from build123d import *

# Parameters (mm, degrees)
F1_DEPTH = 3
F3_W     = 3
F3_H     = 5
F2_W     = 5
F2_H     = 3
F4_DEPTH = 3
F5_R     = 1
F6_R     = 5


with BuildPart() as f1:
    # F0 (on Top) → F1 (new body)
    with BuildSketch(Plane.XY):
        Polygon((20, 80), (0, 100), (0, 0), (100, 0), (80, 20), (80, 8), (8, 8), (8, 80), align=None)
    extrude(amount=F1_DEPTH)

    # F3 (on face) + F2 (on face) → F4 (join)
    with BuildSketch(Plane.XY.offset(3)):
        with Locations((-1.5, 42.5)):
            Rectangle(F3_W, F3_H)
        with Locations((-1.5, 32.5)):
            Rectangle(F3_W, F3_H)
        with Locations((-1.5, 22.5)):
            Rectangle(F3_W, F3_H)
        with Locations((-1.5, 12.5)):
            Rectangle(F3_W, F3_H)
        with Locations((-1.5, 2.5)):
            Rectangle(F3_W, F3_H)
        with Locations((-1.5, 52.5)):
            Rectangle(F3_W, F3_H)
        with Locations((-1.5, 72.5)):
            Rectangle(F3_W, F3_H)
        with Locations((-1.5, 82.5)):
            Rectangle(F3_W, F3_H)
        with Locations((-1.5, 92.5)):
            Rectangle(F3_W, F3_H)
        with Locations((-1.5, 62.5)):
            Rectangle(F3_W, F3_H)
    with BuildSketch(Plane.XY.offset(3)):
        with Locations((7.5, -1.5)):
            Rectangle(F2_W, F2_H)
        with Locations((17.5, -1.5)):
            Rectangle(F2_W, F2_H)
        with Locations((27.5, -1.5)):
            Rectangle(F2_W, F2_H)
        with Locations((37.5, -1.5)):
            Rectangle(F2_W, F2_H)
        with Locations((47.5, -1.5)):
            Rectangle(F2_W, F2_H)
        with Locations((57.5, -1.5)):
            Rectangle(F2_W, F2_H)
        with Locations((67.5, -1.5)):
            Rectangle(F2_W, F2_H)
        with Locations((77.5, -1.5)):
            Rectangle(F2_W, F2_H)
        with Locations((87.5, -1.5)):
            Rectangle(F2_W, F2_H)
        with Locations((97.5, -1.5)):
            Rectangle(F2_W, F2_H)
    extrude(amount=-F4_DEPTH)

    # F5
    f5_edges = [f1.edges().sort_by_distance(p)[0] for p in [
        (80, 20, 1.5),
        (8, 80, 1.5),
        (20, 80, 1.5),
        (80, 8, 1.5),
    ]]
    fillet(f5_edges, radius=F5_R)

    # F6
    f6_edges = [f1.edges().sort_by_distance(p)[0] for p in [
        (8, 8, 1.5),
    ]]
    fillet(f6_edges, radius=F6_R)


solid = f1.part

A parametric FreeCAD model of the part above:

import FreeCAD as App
import Part
import Sketcher

V = App.Vector
Q = App.Units.Quantity


def edges_at(feature, points):
    """Names of the edges that pass closest to the given points."""
    edges = feature.Shape.Edges
    near = lambda p: min(range(len(edges)), key=lambda i: edges[i].distToShape(Part.Vertex(*p))[0])
    return sorted({f"Edge{near(p) + 1}" for p in points})


def add_polygon(sketch, points):
    """Adds a closed chain of lines whose ends are joined by coincident constraints."""
    first, n = sketch.GeometryCount, len(points)
    for a, b in zip(points, points[1:] + points[:1]):
        sketch.addGeometry(Part.LineSegment(App.Vector(*a, 0), App.Vector(*b, 0)), False)
    for i in range(n):
        sketch.addConstraint(Sketcher.Constraint("Coincident", first + i, 2, first + (i + 1) % n, 1))

doc = App.newDocument("Part")
body = doc.addObject("PartDesign::Body", "Body")

# Sketch on XY plane
sketch1 = body.newObject("Sketcher::SketchObject", "Sketch")
sketch1.AttachmentSupport = (doc.getObject("XY_Plane"), [""])
sketch1.MapMode = "FlatFace"
add_polygon(sketch1, [(20, 80), (0, 100), (0, 0), (100, 0), (80, 20), (80, 8), (8, 8), (8, 80)])  # lines 0-7
sketch1.addConstraint(Sketcher.Constraint("Vertical", 1))
sketch1.addConstraint(Sketcher.Constraint("Horizontal", 2))
sketch1.addConstraint(Sketcher.Constraint("Vertical", 4))
sketch1.addConstraint(Sketcher.Constraint("Horizontal", 5))
sketch1.addConstraint(Sketcher.Constraint("Vertical", 6))
sketch1.addConstraint(Sketcher.Constraint("Horizontal", 7))
sketch1.addConstraint(Sketcher.Constraint("Coincident", 1, 2, -1, 1))
sketch1.addConstraint(Sketcher.Constraint("Parallel", 0, 3))
sketch1.addConstraint(Sketcher.Constraint("Equal", 2, 1))
sketch1.addConstraint(Sketcher.Constraint("Equal", 7, 4))
sketch1.addConstraint(Sketcher.Constraint("Equal", 5, 6))
sketch1.addConstraint(Sketcher.Constraint("Equal", 0, 3))
sketch1.addConstraint(Sketcher.Constraint("DistanceX", 2, 1, 2, 2, Q("100 mm")))
sketch1.addConstraint(Sketcher.Constraint("DistanceX", 5, 2, 5, 1, Q("72 mm")))
sketch1.addConstraint(Sketcher.Constraint("DistanceX", 7, 1, 7, 2, Q("12 mm")))
pad1 = body.newObject("PartDesign::Pad", "Pad")
pad1.Profile = sketch1
pad1.Length = 3

# Sketch on XY plane
sketch2 = body.newObject("Sketcher::SketchObject", "Sketch001")
sketch2.AttachmentSupport = (doc.getObject("XY_Plane"), [""])
sketch2.MapMode = "FlatFace"
sketch2.AttachmentOffset = App.Placement(V(0, 0, 3), App.Rotation())
add_polygon(sketch2, [(-3, 45), (-3, 40), (0, 40), (0, 45)])  # lines 0-3
add_polygon(sketch2, [(-3, 35), (-3, 30), (0, 30), (0, 35)])  # lines 4-7
add_polygon(sketch2, [(-3, 25), (-3, 20), (0, 20), (0, 25)])  # lines 8-11
add_polygon(sketch2, [(-3, 15), (-3, 10), (0, 10), (0, 15)])  # lines 12-15
add_polygon(sketch2, [(-3, 5), (-3, 0), (0, 0), (0, 5)])  # lines 16-19
add_polygon(sketch2, [(-3, 55), (-3, 50), (0, 50), (0, 55)])  # lines 20-23
add_polygon(sketch2, [(-3, 75), (-3, 70), (0, 70), (0, 75)])  # lines 24-27
add_polygon(sketch2, [(-3, 85), (-3, 80), (0, 80), (0, 85)])  # lines 28-31
add_polygon(sketch2, [(-3, 95), (-3, 90), (0, 90), (0, 95)])  # lines 32-35
add_polygon(sketch2, [(-3, 65), (-3, 60), (0, 60), (0, 65)])  # lines 36-39
add_polygon(sketch2, [(5, 0), (5, -3), (10, -3), (10, 0)])  # lines 40-43
add_polygon(sketch2, [(15, 0), (15, -3), (20, -3), (20, 0)])  # lines 44-47
add_polygon(sketch2, [(25, 0), (25, -3), (30, -3), (30, 0)])  # lines 48-51
add_polygon(sketch2, [(35, 0), (35, -3), (40, -3), (40, 0)])  # lines 52-55
add_polygon(sketch2, [(45, 0), (45, -3), (50, -3), (50, 0)])  # lines 56-59
add_polygon(sketch2, [(55, 0), (55, -3), (60, -3), (60, 0)])  # lines 60-63
add_polygon(sketch2, [(65, 0), (65, -3), (70, -3), (70, 0)])  # lines 64-67
add_polygon(sketch2, [(75, 0), (75, -3), (80, -3), (80, 0)])  # lines 68-71
add_polygon(sketch2, [(85, 0), (85, -3), (90, -3), (90, 0)])  # lines 72-75
add_polygon(sketch2, [(95, 0), (95, -3), (100, -3), (100, 0)])  # lines 76-79
sketch2.addConstraint(Sketcher.Constraint("Vertical", 0))
sketch2.addConstraint(Sketcher.Constraint("Horizontal", 1))
sketch2.addConstraint(Sketcher.Constraint("Vertical", 2))
sketch2.addConstraint(Sketcher.Constraint("Horizontal", 3))
sketch2.addConstraint(Sketcher.Constraint("Vertical", 4))
sketch2.addConstraint(Sketcher.Constraint("Horizontal", 5))
sketch2.addConstraint(Sketcher.Constraint("Vertical", 6))
sketch2.addConstraint(Sketcher.Constraint("Horizontal", 7))
sketch2.addConstraint(Sketcher.Constraint("Vertical", 8))
sketch2.addConstraint(Sketcher.Constraint("Horizontal", 9))
sketch2.addConstraint(Sketcher.Constraint("Vertical", 10))
sketch2.addConstraint(Sketcher.Constraint("Horizontal", 11))
sketch2.addConstraint(Sketcher.Constraint("Vertical", 12))
sketch2.addConstraint(Sketcher.Constraint("Horizontal", 13))
sketch2.addConstraint(Sketcher.Constraint("Vertical", 14))
sketch2.addConstraint(Sketcher.Constraint("Horizontal", 15))
sketch2.addConstraint(Sketcher.Constraint("Vertical", 16))
sketch2.addConstraint(Sketcher.Constraint("Horizontal", 17))
sketch2.addConstraint(Sketcher.Constraint("Vertical", 18))
sketch2.addConstraint(Sketcher.Constraint("Horizontal", 19))
sketch2.addConstraint(Sketcher.Constraint("Vertical", 20))
sketch2.addConstraint(Sketcher.Constraint("Horizontal", 21))
sketch2.addConstraint(Sketcher.Constraint("Vertical", 22))
sketch2.addConstraint(Sketcher.Constraint("Horizontal", 23))
sketch2.addConstraint(Sketcher.Constraint("Vertical", 24))
sketch2.addConstraint(Sketcher.Constraint("Horizontal", 25))
sketch2.addConstraint(Sketcher.Constraint("Vertical", 26))
sketch2.addConstraint(Sketcher.Constraint("Horizontal", 27))
sketch2.addConstraint(Sketcher.Constraint("Vertical", 28))
sketch2.addConstraint(Sketcher.Constraint("Horizontal", 29))
sketch2.addConstraint(Sketcher.Constraint("Vertical", 30))
sketch2.addConstraint(Sketcher.Constraint("Horizontal", 31))
sketch2.addConstraint(Sketcher.Constraint("Vertical", 32))
sketch2.addConstraint(Sketcher.Constraint("Horizontal", 33))
sketch2.addConstraint(Sketcher.Constraint("Vertical", 34))
sketch2.addConstraint(Sketcher.Constraint("Horizontal", 35))
sketch2.addConstraint(Sketcher.Constraint("Vertical", 36))
sketch2.addConstraint(Sketcher.Constraint("Horizontal", 37))
sketch2.addConstraint(Sketcher.Constraint("Vertical", 38))
sketch2.addConstraint(Sketcher.Constraint("Horizontal", 39))
sketch2.addConstraint(Sketcher.Constraint("Vertical", 40))
sketch2.addConstraint(Sketcher.Constraint("Horizontal", 41))
sketch2.addConstraint(Sketcher.Constraint("Vertical", 42))
sketch2.addConstraint(Sketcher.Constraint("Horizontal", 43))
sketch2.addConstraint(Sketcher.Constraint("Vertical", 44))
sketch2.addConstraint(Sketcher.Constraint("Horizontal", 45))
sketch2.addConstraint(Sketcher.Constraint("Vertical", 46))
sketch2.addConstraint(Sketcher.Constraint("Horizontal", 47))
sketch2.addConstraint(Sketcher.Constraint("Vertical", 48))
sketch2.addConstraint(Sketcher.Constraint("Horizontal", 49))
sketch2.addConstraint(Sketcher.Constraint("Vertical", 50))
sketch2.addConstraint(Sketcher.Constraint("Horizontal", 51))
sketch2.addConstraint(Sketcher.Constraint("Vertical", 52))
sketch2.addConstraint(Sketcher.Constraint("Horizontal", 53))
sketch2.addConstraint(Sketcher.Constraint("Vertical", 54))
sketch2.addConstraint(Sketcher.Constraint("Horizontal", 55))
sketch2.addConstraint(Sketcher.Constraint("Vertical", 56))
sketch2.addConstraint(Sketcher.Constraint("Horizontal", 57))
sketch2.addConstraint(Sketcher.Constraint("Vertical", 58))
sketch2.addConstraint(Sketcher.Constraint("Horizontal", 59))
sketch2.addConstraint(Sketcher.Constraint("Vertical", 60))
sketch2.addConstraint(Sketcher.Constraint("Horizontal", 61))
sketch2.addConstraint(Sketcher.Constraint("Vertical", 62))
sketch2.addConstraint(Sketcher.Constraint("Horizontal", 63))
sketch2.addConstraint(Sketcher.Constraint("Vertical", 64))
sketch2.addConstraint(Sketcher.Constraint("Horizontal", 65))
sketch2.addConstraint(Sketcher.Constraint("Vertical", 66))
sketch2.addConstraint(Sketcher.Constraint("Horizontal", 67))
sketch2.addConstraint(Sketcher.Constraint("Vertical", 68))
sketch2.addConstraint(Sketcher.Constraint("Horizontal", 69))
sketch2.addConstraint(Sketcher.Constraint("Vertical", 70))
sketch2.addConstraint(Sketcher.Constraint("Horizontal", 71))
sketch2.addConstraint(Sketcher.Constraint("Vertical", 72))
sketch2.addConstraint(Sketcher.Constraint("Horizontal", 73))
sketch2.addConstraint(Sketcher.Constraint("Vertical", 74))
sketch2.addConstraint(Sketcher.Constraint("Horizontal", 75))
sketch2.addConstraint(Sketcher.Constraint("Vertical", 76))
sketch2.addConstraint(Sketcher.Constraint("Horizontal", 77))
sketch2.addConstraint(Sketcher.Constraint("Vertical", 78))
sketch2.addConstraint(Sketcher.Constraint("Horizontal", 79))
sketch2.addConstraint(Sketcher.Constraint("Coincident", 17, 2, -1, 1))
sketch2.addConstraint(Sketcher.Constraint("PointOnObject", 1, 2, -2))
sketch2.addConstraint(Sketcher.Constraint("PointOnObject", 5, 2, -2))
sketch2.addConstraint(Sketcher.Constraint("PointOnObject", 9, 2, -2))
sketch2.addConstraint(Sketcher.Constraint("PointOnObject", 13, 2, -2))
sketch2.addConstraint(Sketcher.Constraint("PointOnObject", 21, 2, -2))
sketch2.addConstraint(Sketcher.Constraint("PointOnObject", 25, 2, -2))
sketch2.addConstraint(Sketcher.Constraint("PointOnObject", 29, 2, -2))
sketch2.addConstraint(Sketcher.Constraint("PointOnObject", 33, 2, -2))
sketch2.addConstraint(Sketcher.Constraint("PointOnObject", 37, 2, -2))
sketch2.addConstraint(Sketcher.Constraint("PointOnObject", 42, 2, -1))
sketch2.addConstraint(Sketcher.Constraint("PointOnObject", 46, 2, -1))
sketch2.addConstraint(Sketcher.Constraint("PointOnObject", 50, 2, -1))
sketch2.addConstraint(Sketcher.Constraint("PointOnObject", 54, 2, -1))
sketch2.addConstraint(Sketcher.Constraint("PointOnObject", 58, 2, -1))
sketch2.addConstraint(Sketcher.Constraint("PointOnObject", 62, 2, -1))
sketch2.addConstraint(Sketcher.Constraint("PointOnObject", 66, 2, -1))
sketch2.addConstraint(Sketcher.Constraint("PointOnObject", 70, 2, -1))
sketch2.addConstraint(Sketcher.Constraint("PointOnObject", 74, 2, -1))
sketch2.addConstraint(Sketcher.Constraint("PointOnObject", 78, 2, -1))
sketch2.addConstraint(Sketcher.Constraint("Horizontal", 41, 2, 44, 2))
sketch2.addConstraint(Sketcher.Constraint("Horizontal", 45, 2, 48, 2))
sketch2.addConstraint(Sketcher.Constraint("Horizontal", 49, 2, 52, 2))
sketch2.addConstraint(Sketcher.Constraint("Horizontal", 53, 2, 56, 2))
sketch2.addConstraint(Sketcher.Constraint("Horizontal", 57, 2, 60, 2))
sketch2.addConstraint(Sketcher.Constraint("Horizontal", 61, 2, 64, 2))
sketch2.addConstraint(Sketcher.Constraint("Horizontal", 65, 2, 68, 2))
sketch2.addConstraint(Sketcher.Constraint("Horizontal", 69, 2, 72, 2))
sketch2.addConstraint(Sketcher.Constraint("Horizontal", 73, 2, 76, 2))
sketch2.addConstraint(Sketcher.Constraint("Vertical", 3, 2, 4, 2))
sketch2.addConstraint(Sketcher.Constraint("Vertical", 7, 2, 8, 2))
sketch2.addConstraint(Sketcher.Constraint("Vertical", 11, 2, 12, 2))
sketch2.addConstraint(Sketcher.Constraint("Vertical", 15, 2, 16, 2))
sketch2.addConstraint(Sketcher.Constraint("Vertical", 19, 2, 20, 2))
sketch2.addConstraint(Sketcher.Constraint("Vertical", 23, 2, 24, 2))
sketch2.addConstraint(Sketcher.Constraint("Vertical", 27, 2, 28, 2))
sketch2.addConstraint(Sketcher.Constraint("Vertical", 31, 2, 32, 2))
sketch2.addConstraint(Sketcher.Constraint("Vertical", 35, 2, 36, 2))
sketch2.addConstraint(Sketcher.Constraint("Equal", 43, 45))
sketch2.addConstraint(Sketcher.Constraint("Equal", 47, 49))
sketch2.addConstraint(Sketcher.Constraint("Equal", 51, 53))
sketch2.addConstraint(Sketcher.Constraint("Equal", 55, 57))
sketch2.addConstraint(Sketcher.Constraint("Equal", 59, 61))
sketch2.addConstraint(Sketcher.Constraint("Equal", 63, 65))
sketch2.addConstraint(Sketcher.Constraint("Equal", 67, 69))
sketch2.addConstraint(Sketcher.Constraint("Equal", 71, 73))
sketch2.addConstraint(Sketcher.Constraint("Equal", 75, 77))
sketch2.addConstraint(Sketcher.Constraint("Equal", 79, 0))
sketch2.addConstraint(Sketcher.Constraint("Equal", 2, 4))
sketch2.addConstraint(Sketcher.Constraint("Equal", 6, 8))
sketch2.addConstraint(Sketcher.Constraint("Equal", 10, 12))
sketch2.addConstraint(Sketcher.Constraint("Equal", 14, 16))
sketch2.addConstraint(Sketcher.Constraint("Equal", 18, 20))
sketch2.addConstraint(Sketcher.Constraint("Equal", 22, 24))
sketch2.addConstraint(Sketcher.Constraint("Equal", 26, 28))
sketch2.addConstraint(Sketcher.Constraint("Equal", 30, 32))
sketch2.addConstraint(Sketcher.Constraint("Equal", 34, 36))
sketch2.addConstraint(Sketcher.Constraint("Equal", 39, 40))
sketch2.addConstraint(Sketcher.Constraint("DistanceX", 1, 1, 1, 2, Q("3 mm")))
sketch2.addConstraint(Sketcher.Constraint("DistanceX", 41, 1, 41, 2, Q("5 mm")))
sketch2.addConstraint(Sketcher.Constraint("DistanceY", -1, 1, 0, 2, Q("40 mm")))
sketch2.addConstraint(Sketcher.Constraint("DistanceY", -1, 1, 4, 2, Q("30 mm")))
sketch2.addConstraint(Sketcher.Constraint("DistanceY", -1, 1, 8, 2, Q("20 mm")))
sketch2.addConstraint(Sketcher.Constraint("DistanceY", -1, 1, 12, 2, Q("10 mm")))
sketch2.addConstraint(Sketcher.Constraint("DistanceY", -1, 1, 20, 2, Q("50 mm")))
sketch2.addConstraint(Sketcher.Constraint("DistanceY", -1, 1, 24, 2, Q("70 mm")))
sketch2.addConstraint(Sketcher.Constraint("DistanceY", -1, 1, 28, 2, Q("80 mm")))
sketch2.addConstraint(Sketcher.Constraint("DistanceY", -1, 1, 32, 2, Q("90 mm")))
sketch2.addConstraint(Sketcher.Constraint("DistanceY", -1, 1, 36, 2, Q("60 mm")))
sketch2.addConstraint(Sketcher.Constraint("DistanceX", -1, 1, 40, 2, Q("5 mm")))
sketch2.addConstraint(Sketcher.Constraint("DistanceX", -1, 1, 44, 2, Q("15 mm")))
sketch2.addConstraint(Sketcher.Constraint("DistanceX", -1, 1, 48, 2, Q("25 mm")))
sketch2.addConstraint(Sketcher.Constraint("DistanceX", -1, 1, 52, 2, Q("35 mm")))
sketch2.addConstraint(Sketcher.Constraint("DistanceX", -1, 1, 56, 2, Q("45 mm")))
sketch2.addConstraint(Sketcher.Constraint("DistanceX", -1, 1, 60, 2, Q("55 mm")))
sketch2.addConstraint(Sketcher.Constraint("DistanceX", -1, 1, 64, 2, Q("65 mm")))
sketch2.addConstraint(Sketcher.Constraint("DistanceX", -1, 1, 68, 2, Q("75 mm")))
sketch2.addConstraint(Sketcher.Constraint("DistanceX", -1, 1, 72, 2, Q("85 mm")))
sketch2.addConstraint(Sketcher.Constraint("DistanceX", -1, 1, 76, 2, Q("95 mm")))
pad2 = body.newObject("PartDesign::Pad", "Pad001")
pad2.Profile = sketch2
pad2.Length = 3
pad2.Reversed = True
doc.recompute()

fillet = body.newObject("PartDesign::Fillet", "Fillet")
fillet.Base = (pad2, edges_at(pad2, [
    (80, 20, 1.5),
    (8, 80, 1.5),
    (20, 80, 1.5),
    (80, 8, 1.5),
]))
fillet.Radius = 1
doc.recompute()

fillet2 = body.newObject("PartDesign::Fillet", "Fillet001")
fillet2.Base = (fillet, edges_at(fillet, [(8, 8, 1.5)]))
fillet2.Radius = 5

doc.recompute()
